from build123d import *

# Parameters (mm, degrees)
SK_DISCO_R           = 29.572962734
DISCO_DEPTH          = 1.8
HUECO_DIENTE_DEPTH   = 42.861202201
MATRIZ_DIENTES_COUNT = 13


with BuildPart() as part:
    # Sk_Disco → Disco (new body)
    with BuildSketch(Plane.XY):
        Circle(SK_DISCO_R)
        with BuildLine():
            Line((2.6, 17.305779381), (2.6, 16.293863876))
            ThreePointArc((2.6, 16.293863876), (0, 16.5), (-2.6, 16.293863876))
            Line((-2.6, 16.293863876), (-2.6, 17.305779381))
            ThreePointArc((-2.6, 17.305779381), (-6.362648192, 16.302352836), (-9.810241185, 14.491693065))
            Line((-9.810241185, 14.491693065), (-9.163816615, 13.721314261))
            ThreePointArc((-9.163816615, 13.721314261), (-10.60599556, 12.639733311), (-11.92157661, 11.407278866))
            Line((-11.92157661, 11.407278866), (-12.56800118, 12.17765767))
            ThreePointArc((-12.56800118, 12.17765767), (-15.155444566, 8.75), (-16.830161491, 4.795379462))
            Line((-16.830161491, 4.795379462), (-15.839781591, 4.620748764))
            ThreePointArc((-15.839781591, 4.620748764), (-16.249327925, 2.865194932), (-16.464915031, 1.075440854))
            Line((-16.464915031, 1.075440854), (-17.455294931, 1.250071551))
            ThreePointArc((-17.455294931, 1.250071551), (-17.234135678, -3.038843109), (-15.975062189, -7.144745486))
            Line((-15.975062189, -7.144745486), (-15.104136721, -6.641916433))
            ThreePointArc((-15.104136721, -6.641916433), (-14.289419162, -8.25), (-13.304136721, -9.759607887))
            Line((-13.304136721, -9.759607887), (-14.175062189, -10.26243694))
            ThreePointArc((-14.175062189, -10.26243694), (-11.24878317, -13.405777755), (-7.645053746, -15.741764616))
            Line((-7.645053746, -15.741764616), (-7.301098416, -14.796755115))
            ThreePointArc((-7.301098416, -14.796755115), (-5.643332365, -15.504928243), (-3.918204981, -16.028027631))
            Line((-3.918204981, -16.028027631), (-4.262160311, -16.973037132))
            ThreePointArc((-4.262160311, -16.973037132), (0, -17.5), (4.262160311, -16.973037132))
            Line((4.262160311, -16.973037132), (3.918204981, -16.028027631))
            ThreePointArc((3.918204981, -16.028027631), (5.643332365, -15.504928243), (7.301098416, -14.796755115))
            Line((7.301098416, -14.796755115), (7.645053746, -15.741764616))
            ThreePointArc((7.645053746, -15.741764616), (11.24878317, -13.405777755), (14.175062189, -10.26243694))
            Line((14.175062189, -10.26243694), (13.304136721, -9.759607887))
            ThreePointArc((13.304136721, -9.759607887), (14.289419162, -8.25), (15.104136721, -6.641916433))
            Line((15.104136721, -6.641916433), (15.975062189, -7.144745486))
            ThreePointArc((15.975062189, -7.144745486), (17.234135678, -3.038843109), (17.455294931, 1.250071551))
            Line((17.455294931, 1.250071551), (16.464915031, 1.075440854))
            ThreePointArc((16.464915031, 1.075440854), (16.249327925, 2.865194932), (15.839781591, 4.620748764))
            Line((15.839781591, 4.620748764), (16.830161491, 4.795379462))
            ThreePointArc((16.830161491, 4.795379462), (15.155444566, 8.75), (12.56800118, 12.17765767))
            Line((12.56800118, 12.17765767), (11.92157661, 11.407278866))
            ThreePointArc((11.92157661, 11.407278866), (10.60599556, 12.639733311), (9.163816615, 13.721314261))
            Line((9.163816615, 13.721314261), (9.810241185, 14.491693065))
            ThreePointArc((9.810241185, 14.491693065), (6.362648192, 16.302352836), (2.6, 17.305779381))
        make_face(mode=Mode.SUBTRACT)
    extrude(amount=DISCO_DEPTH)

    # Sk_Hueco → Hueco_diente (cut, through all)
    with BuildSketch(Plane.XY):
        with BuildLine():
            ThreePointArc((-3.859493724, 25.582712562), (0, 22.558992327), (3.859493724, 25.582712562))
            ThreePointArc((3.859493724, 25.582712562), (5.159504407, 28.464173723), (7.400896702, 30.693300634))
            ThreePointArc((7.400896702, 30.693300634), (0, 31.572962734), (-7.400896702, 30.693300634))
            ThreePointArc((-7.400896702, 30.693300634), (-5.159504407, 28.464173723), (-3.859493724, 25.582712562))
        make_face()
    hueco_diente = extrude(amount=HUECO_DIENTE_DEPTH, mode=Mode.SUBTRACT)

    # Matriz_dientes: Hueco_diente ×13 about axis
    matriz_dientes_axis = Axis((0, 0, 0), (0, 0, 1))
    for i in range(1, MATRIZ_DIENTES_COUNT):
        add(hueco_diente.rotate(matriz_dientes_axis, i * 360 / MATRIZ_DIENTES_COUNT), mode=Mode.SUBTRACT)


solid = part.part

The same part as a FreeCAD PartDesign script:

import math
import FreeCAD as App
import Part
import Sketcher

V = App.Vector
Q = App.Units.Quantity

doc = App.newDocument("Part")
body = doc.addObject("PartDesign::Body", "Body")

sketch1 = body.newObject("Sketcher::SketchObject", "Sketch")
sketch1.AttachmentSupport = (doc.getObject("XY_Plane"), [""])
sketch1.MapMode = "FlatFace"
sketch1.addGeometry(Part.Circle(V(0, 0, 0), V(0, 0, 1), 29.6), False)
sketch1.addGeometry(Part.LineSegment(V(2.6, 16.3, 0), V(2.6, 17.3, 0)), False)
sketch1.addGeometry(Part.ArcOfCircle(Part.Circle(V(0, 0, 0), V(0, 0, 1), 17.5), math.radians(56), math.radians(81)), False)
sketch1.addGeometry(Part.LineSegment(V(9.8, 14.5, 0), V(9.2, 13.7, 0)), False)
sketch1.addGeometry(Part.ArcOfCircle(Part.Circle(V(0, 0, 0), V(0, 0, 1), 16.5), math.radians(43.74), math.radians(56.26)), False)
sketch1.addGeometry(Part.LineSegment(V(11.9, 11.4, 0), V(12.6, 12.2, 0)), False)
sketch1.addGeometry(Part.ArcOfCircle(Part.Circle(V(0, 0, 0), V(0, 0, 1), 17.5), math.radians(16), math.radians(44)), False)
sketch1.addGeometry(Part.LineSegment(V(16.8, 4.8, 0), V(15.8, 4.6, 0)), False)
sketch1.addGeometry(Part.ArcOfCircle(Part.Circle(V(0, 0, 0), V(0, 0, 1), 16.5), math.radians(3.74), math.radians(16.26)), False)
sketch1.addGeometry(Part.LineSegment(V(16.5, 1.1, 0), V(17.5, 1.3, 0)), False)
sketch1.addGeometry(Part.ArcOfCircle(Part.Circle(V(0, 0, 0), V(0, 0, 1), 17.5), math.radians(-24), math.radians(4)), False)
sketch1.addGeometry(Part.LineSegment(V(16, -7.1, 0), V(15.1, -6.6, 0)), False)
sketch1.addGeometry(Part.ArcOfCircle(Part.Circle(V(0, 0, 0), V(0, 0, 1), 16.5), math.radians(-36.26), math.radians(-23.74)), False)
sketch1.addGeometry(Part.LineSegment(V(13.3, -9.8, 0), V(14.2, -10.3, 0)), False)
sketch1.addGeometry(Part.ArcOfCircle(Part.Circle(V(0, 0, 0), V(0, 0, 1), 17.5), math.radians(-64), math.radians(-36)), False)
sketch1.addGeometry(Part.LineSegment(V(7.6, -15.7, 0), V(7.3, -14.8, 0)), False)
sketch1.addGeometry(Part.ArcOfCircle(Part.Circle(V(0, 0, 0), V(0, 0, 1), 16.5), math.radians(-76.26), math.radians(-63.74)), False)
sketch1.addGeometry(Part.LineSegment(V(3.9, -16, 0), V(4.3, -17, 0)), False)
sketch1.addGeometry(Part.ArcOfCircle(Part.Circle(V(0, 0, 0), V(0, 0, 1), 17.5), math.radians(-104), math.radians(-76)), False)
sketch1.addGeometry(Part.LineSegment(V(-4.3, -17, 0), V(-3.9, -16, 0)), False)
sketch1.addGeometry(Part.ArcOfCircle(Part.Circle(V(0, 0, 0), V(0, 0, 1), 16.5), math.radians(-116.26), math.radians(-103.74)), False)
sketch1.addGeometry(Part.LineSegment(V(-7.3, -14.8, 0), V(-7.6, -15.7, 0)), False)
sketch1.addGeometry(Part.ArcOfCircle(Part.Circle(V(0, 0, 0), V(0, 0, 1), 17.5), math.radians(-144), math.radians(-116)), False)
sketch1.addGeometry(Part.LineSegment(V(-14.2, -10.3, 0), V(-13.3, -9.8, 0)), False)
sketch1.addGeometry(Part.ArcOfCircle(Part.Circle(V(0, 0, 0), V(0, 0, 1), 16.5), math.radians(-156.26), math.radians(-143.74)), False)
sketch1.addGeometry(Part.LineSegment(V(-15.1, -6.6, 0), V(-16, -7.1, 0)), False)
sketch1.addGeometry(Part.ArcOfCircle(Part.Circle(V(0, 0, 0), V(0, 0, 1), 17.5), math.radians(176), math.radians(204)), False)
sketch1.addGeometry(Part.LineSegment(V(-17.5, 1.3, 0), V(-16.5, 1.1, 0)), False)
sketch1.addGeometry(Part.ArcOfCircle(Part.Circle(V(0, 0, 0), V(0, 0, 1), 16.5), math.radians(163.74), math.radians(176.26)), False)
sketch1.addGeometry(Part.LineSegment(V(-15.8, 4.6, 0), V(-16.8, 4.8, 0)), False)
sketch1.addGeometry(Part.ArcOfCircle(Part.Circle(V(0, 0, 0), V(0, 0, 1), 17.5), math.radians(136), math.radians(164)), False)
sketch1.addGeometry(Part.LineSegment(V(-12.6, 12.2, 0), V(-11.9, 11.4, 0)), False)
sketch1.addGeometry(Part.ArcOfCircle(Part.Circle(V(0, 0, 0), V(0, 0, 1), 16.5), math.radians(123.74), math.radians(136.26)), False)
sketch1.addGeometry(Part.LineSegment(V(-9.2, 13.7, 0), V(-9.8, 14.5, 0)), False)
sketch1.addGeometry(Part.ArcOfCircle(Part.Circle(V(0, 0, 0), V(0, 0, 1), 17.5), math.radians(99), math.radians(124)), False)
sketch1.addGeometry(Part.LineSegment(V(-2.6, 17.3, 0), V(-2.6, 16.3, 0)), False)
sketch1.addGeometry(Part.ArcOfCircle(Part.Circle(V(0, 0, 0), V(0, 0, 1), 16.5), math.radians(80.93), math.radians(99.07)), False)
sketch1.addConstraint(Sketcher.Constraint("Coincident", 1, 2, 2, 2))
sketch1.addConstraint(Sketcher.Constraint("Coincident", 2, 1, 3, 1))
sketch1.addConstraint(Sketcher.Constraint("Coincident", 3, 2, 4, 2))
sketch1.addConstraint(Sketcher.Constraint("Coincident", 4, 1, 5, 1))
sketch1.addConstraint(Sketcher.Constraint("Coincident", 5, 2, 6, 2))
sketch1.addConstraint(Sketcher.Constraint("Coincident", 6, 1, 7, 1))
sketch1.addConstraint(Sketcher.Constraint("Coincident", 7, 2, 8, 2))
sketch1.addConstraint(Sketcher.Constraint("Coincident", 8, 1, 9, 1))
sketch1.addConstraint(Sketcher.Constraint("Coincident", 9, 2, 10, 2))
sketch1.addConstraint(Sketcher.Constraint("Coincident", 10, 1, 11, 1))
sketch1.addConstraint(Sketcher.Constraint("Coincident", 11, 2, 12, 2))
sketch1.addConstraint(Sketcher.Constraint("Coincident", 12, 1, 13, 1))
sketch1.addConstraint(Sketcher.Constraint("Coincident", 13, 2, 14, 2))
sketch1.addConstraint(Sketcher.Constraint("Coincident", 14, 1, 15, 1))
sketch1.addConstraint(Sketcher.Constraint("Coincident", 15, 2, 16, 2))
sketch1.addConstraint(Sketcher.Constraint("Coincident", 16, 1, 17, 1))
sketch1.addConstraint(Sketcher.Constraint("Coincident", 17, 2, 18, 2))
sketch1.addConstraint(Sketcher.Constraint("Coincident", 18, 1, 19, 1))
sketch1.addConstraint(Sketcher.Constraint("Coincident", 19, 2, 20, 2))
sketch1.addConstraint(Sketcher.Constraint("Coincident", 20, 1, 21, 1))
sketch1.addConstraint(Sketcher.Constraint("Coincident", 21, 2, 22, 2))
sketch1.addConstraint(Sketcher.Constraint("Coincident", 22, 1, 23, 1))
sketch1.addConstraint(Sketcher.Constraint("Coincident", 23, 2, 24, 2))
sketch1.addConstraint(Sketcher.Constraint("Coincident", 24, 1, 25, 1))
sketch1.addConstraint(Sketcher.Constraint("Coincident", 25, 2, 26, 2))
sketch1.addConstraint(Sketcher.Constraint("Coincident", 26, 1, 27, 1))
sketch1.addConstraint(Sketcher.Constraint("Coincident", 27, 2, 28, 2))
sketch1.addConstraint(Sketcher.Constraint("Coincident", 28, 1, 29, 1))
sketch1.addConstraint(Sketcher.Constraint("Coincident", 29, 2, 30, 2))
sketch1.addConstraint(Sketcher.Constraint("Coincident", 30, 1, 31, 1))
sketch1.addConstraint(Sketcher.Constraint("Coincident", 31, 2, 32, 2))
sketch1.addConstraint(Sketcher.Constraint("Coincident", 32, 1, 33, 1))
sketch1.addConstraint(Sketcher.Constraint("Coincident", 33, 2, 34, 2))
sketch1.addConstraint(Sketcher.Constraint("Coincident", 34, 1, 35, 1))
sketch1.addConstraint(Sketcher.Constraint("Coincident", 35, 2, 36, 2))
sketch1.addConstraint(Sketcher.Constraint("Coincident", 36, 1, 1, 1))
sketch1.addConstraint(Sketcher.Constraint("Vertical", 1))
sketch1.addConstraint(Sketcher.Constraint("Vertical", 35))
sketch1.addConstraint(Sketcher.Constraint("Coincident", 0, 3, -1, 1))
sketch1.addConstraint(Sketcher.Constraint("Coincident", 2, 3, -1, 1))
sketch1.addConstraint(Sketcher.Constraint("Coincident", 4, 3, -1, 1))
sketch1.addConstraint(Sketcher.Constraint("Coincident", 6, 3, -1, 1))
sketch1.addConstraint(Sketcher.Constraint("Coincident", 8, 3, -1, 1))
sketch1.addConstraint(Sketcher.Constraint("Coincident", 10, 3, -1, 1))
sketch1.addConstraint(Sketcher.Constraint("Coincident", 12, 3, -1, 1))
sketch1.addConstraint(Sketcher.Constraint("Coincident", 14, 3, -1, 1))
sketch1.addConstraint(Sketcher.Constraint("Coincident", 16, 3, -1, 1))
sketch1.addConstraint(Sketcher.Constraint("Coincident", 18, 3, -1, 1))
sketch1.addConstraint(Sketcher.Constraint("Coincident", 20, 3, -1, 1))
sketch1.addConstraint(Sketcher.Constraint("Coincident", 22, 3, -1, 1))
sketch1.addConstraint(Sketcher.Constraint("Coincident", 24, 3, -1, 1))
sketch1.addConstraint(Sketcher.Constraint("Coincident", 26, 3, -1, 1))
sketch1.addConstraint(Sketcher.Constraint("Coincident", 28, 3, -1, 1))
sketch1.addConstraint(Sketcher.Constraint("Coincident", 30, 3, -1, 1))
sketch1.addConstraint(Sketcher.Constraint("Coincident", 32, 3, -1, 1))
sketch1.addConstraint(Sketcher.Constraint("Coincident", 34, 3, -1, 1))
sketch1.addConstraint(Sketcher.Constraint("Coincident", 36, 3, -1, 1))
sketch1.addConstraint(Sketcher.Constraint("Equal", 2, 6))
sketch1.addConstraint(Sketcher.Constraint("Equal", 4, 8))
sketch1.addConstraint(Sketcher.Constraint("Equal", 6, 10))
sketch1.addConstraint(Sketcher.Constraint("Equal", 8, 12))
sketch1.addConstraint(Sketcher.Constraint("Equal", 10, 14))
sketch1.addConstraint(Sketcher.Constraint("Equal", 12, 16))
sketch1.addConstraint(Sketcher.Constraint("Equal", 14, 18))
sketch1.addConstraint(Sketcher.Constraint("Equal", 16, 20))
sketch1.addConstraint(Sketcher.Constraint("Equal", 18, 22))
sketch1.addConstraint(Sketcher.Constraint("Equal", 20, 24))
sketch1.addConstraint(Sketcher.Constraint("Equal", 22, 26))
sketch1.addConstraint(Sketcher.Constraint("Equal", 24, 28))
sketch1.addConstraint(Sketcher.Constraint("Equal", 26, 30))
sketch1.addConstraint(Sketcher.Constraint("Equal", 28, 32))
sketch1.addConstraint(Sketcher.Constraint("Equal", 30, 34))
sketch1.addConstraint(Sketcher.Constraint("Equal", 32, 36))
sketch1.addConstraint(Sketcher.Constraint("Parallel", 3, 5))
sketch1.addConstraint(Sketcher.Constraint("Parallel", 7, 9))
sketch1.addConstraint(Sketcher.Constraint("Parallel", 11, 13))
sketch1.addConstraint(Sketcher.Constraint("Parallel", 15, 17))
sketch1.addConstraint(Sketcher.Constraint("Parallel", 19, 21))
sketch1.addConstraint(Sketcher.Constraint("Parallel", 23, 25))
sketch1.addConstraint(Sketcher.Constraint("Parallel", 27, 29))
sketch1.addConstraint(Sketcher.Constraint("Parallel", 31, 33))
sketch1.addConstraint(Sketcher.Constraint("Horizontal", 17, 2, 18, 1))
sketch1.addConstraint(Sketcher.Constraint("Horizontal", 16, 1, 19, 2))
sketch1.addConstraint(Sketcher.Constraint("Horizontal", 15, 2, 20, 1))
sketch1.addConstraint(Sketcher.Constraint("Horizontal", 13, 2, 22, 1))
sketch1.addConstraint(Sketcher.Constraint("Horizontal", 12, 1, 23, 2))
sketch1.addConstraint(Sketcher.Constraint("Horizontal", 11, 2, 24, 1))
sketch1.addConstraint(Sketcher.Constraint("Horizontal", 9, 2, 26, 1))
sketch1.addConstraint(Sketcher.Constraint("Horizontal", 8, 1, 27, 2))
sketch1.addConstraint(Sketcher.Constraint("Horizontal", 7, 2, 28, 1))
sketch1.addConstraint(Sketcher.Constraint("Horizontal", 5, 2, 30, 1))
sketch1.addConstraint(Sketcher.Constraint("Horizontal", 4, 1, 31, 2))
sketch1.addConstraint(Sketcher.Constraint("Horizontal", 3, 2, 32, 1))
sketch1.addConstraint(Sketcher.Constraint("Horizontal", 1, 2, 34, 1))
sketch1.addConstraint(Sketcher.Constraint("Equal", 3, 5))
sketch1.addConstraint(Sketcher.Constraint("Equal", 5, 7))
sketch1.addConstraint(Sketcher.Constraint("Equal", 7, 9))
sketch1.addConstraint(Sketcher.Constraint("Equal", 9, 11))
sketch1.addConstraint(Sketcher.Constraint("Equal", 11, 13))
sketch1.addConstraint(Sketcher.Constraint("Equal", 13, 15))
sketch1.addConstraint(Sketcher.Constraint("Equal", 15, 17))
sketch1.addConstraint(Sketcher.Constraint("Radius", 2, 17.5))
sketch1.addConstraint(Sketcher.Constraint("Radius", 4, 16.5))
sketch1.addConstraint(Sketcher.Constraint("Angle", 3, Q("-130 deg")))
sketch1.addConstraint(Sketcher.Constraint("Angle", 7, Q("-170 deg")))
sketch1.addConstraint(Sketcher.Constraint("Angle", 11, Q("150 deg")))
sketch1.addConstraint(Sketcher.Constraint("Angle", 15, Q("110 deg")))
sketch1.addConstraint(Sketcher.Constraint("DistanceX", -1, 1, 1, 2, 2.6))
sketch1.addConstraint(Sketcher.Constraint("DistanceX", 12, 1, 11, 2, 1.8))
sketch1.addConstraint(Sketcher.Constraint("Diameter", 0, 59.145925))
pad1 = body.newObject("PartDesign::Pad", "Pad")
pad1.Profile = sketch1
pad1.Length = 1.8

sketch2 = body.newObject("Sketcher::SketchObject", "Sketch001")
sketch2.AttachmentSupport = (doc.getObject("XY_Plane"), [""])
sketch2.MapMode = "FlatFace"
sketch2.addGeometry(Part.ArcOfCircle(Part.Circle(V(0, 26.5, 0), V(0, 0, 1), 4), math.radians(-166), math.radians(-14)), False)
sketch2.addGeometry(Part.ArcOfCircle(Part.Circle(V(12.3, 23.5, 0), V(0, 0, 1), 8.7), math.radians(124), math.radians(166)), False)
sketch2.addGeometry(Part.ArcOfCircle(Part.Circle(V(0, 0, 0), V(0, 0, 1), 31.6), math.radians(76), math.radians(104)), False)
sketch2.addGeometry(Part.ArcOfCircle(Part.Circle(V(-12.3, 23.5, 0), V(0, 0, 1), 8.7), math.radians(14), math.radians(56)), False)
sketch2.addConstraint(Sketcher.Constraint("Tangent", 0, 2, 1, 2))
sketch2.addConstraint(Sketcher.Constraint("Coincident", 1, 1, 2, 1))
sketch2.addConstraint(Sketcher.Constraint("Coincident", 2, 2, 3, 2))
sketch2.addConstraint(Sketcher.Constraint("Tangent", 3, 1, 0, 1))
sketch2.addConstraint(Sketcher.Constraint("Coincident", 2, 3, -1, 1))
sketch2.addConstraint(Sketcher.Constraint("Equal", 1, 3))
sketch2.addConstraint(Sketcher.Constraint("Symmetric", 1, 3, 3, 3, -2))
sketch2.addConstraint(Sketcher.Constraint("Radius", 0, 3.975))
sketch2.addConstraint(Sketcher.Constraint("Radius", 1, 8.725))
sketch2.addConstraint(Sketcher.Constraint("Radius", 2, 31.572963))
sketch2.addConstraint(Sketcher.Constraint("DistanceY", -1, 1, 1, 1, 30.693301))
sketch2.addConstraint(Sketcher.Constraint("DistanceX", -1, 1, 1, 3, 12.330961))
pocket1 = body.newObject("PartDesign::Pocket", "Pocket")
pocket1.Profile = sketch2
pocket1.Type = "ThroughAll"
pocket1.Reversed = True
doc.recompute()

polarpattern = body.newObject("PartDesign::PolarPattern", "PolarPattern")
polarpattern.Originals = [pocket1]
polarpattern.Axis = (doc.getObject("Z_Axis"), [""])
polarpattern.Angle = 360
polarpattern.Occurrences = 13
body.Tip = polarpattern

doc.recompute()
